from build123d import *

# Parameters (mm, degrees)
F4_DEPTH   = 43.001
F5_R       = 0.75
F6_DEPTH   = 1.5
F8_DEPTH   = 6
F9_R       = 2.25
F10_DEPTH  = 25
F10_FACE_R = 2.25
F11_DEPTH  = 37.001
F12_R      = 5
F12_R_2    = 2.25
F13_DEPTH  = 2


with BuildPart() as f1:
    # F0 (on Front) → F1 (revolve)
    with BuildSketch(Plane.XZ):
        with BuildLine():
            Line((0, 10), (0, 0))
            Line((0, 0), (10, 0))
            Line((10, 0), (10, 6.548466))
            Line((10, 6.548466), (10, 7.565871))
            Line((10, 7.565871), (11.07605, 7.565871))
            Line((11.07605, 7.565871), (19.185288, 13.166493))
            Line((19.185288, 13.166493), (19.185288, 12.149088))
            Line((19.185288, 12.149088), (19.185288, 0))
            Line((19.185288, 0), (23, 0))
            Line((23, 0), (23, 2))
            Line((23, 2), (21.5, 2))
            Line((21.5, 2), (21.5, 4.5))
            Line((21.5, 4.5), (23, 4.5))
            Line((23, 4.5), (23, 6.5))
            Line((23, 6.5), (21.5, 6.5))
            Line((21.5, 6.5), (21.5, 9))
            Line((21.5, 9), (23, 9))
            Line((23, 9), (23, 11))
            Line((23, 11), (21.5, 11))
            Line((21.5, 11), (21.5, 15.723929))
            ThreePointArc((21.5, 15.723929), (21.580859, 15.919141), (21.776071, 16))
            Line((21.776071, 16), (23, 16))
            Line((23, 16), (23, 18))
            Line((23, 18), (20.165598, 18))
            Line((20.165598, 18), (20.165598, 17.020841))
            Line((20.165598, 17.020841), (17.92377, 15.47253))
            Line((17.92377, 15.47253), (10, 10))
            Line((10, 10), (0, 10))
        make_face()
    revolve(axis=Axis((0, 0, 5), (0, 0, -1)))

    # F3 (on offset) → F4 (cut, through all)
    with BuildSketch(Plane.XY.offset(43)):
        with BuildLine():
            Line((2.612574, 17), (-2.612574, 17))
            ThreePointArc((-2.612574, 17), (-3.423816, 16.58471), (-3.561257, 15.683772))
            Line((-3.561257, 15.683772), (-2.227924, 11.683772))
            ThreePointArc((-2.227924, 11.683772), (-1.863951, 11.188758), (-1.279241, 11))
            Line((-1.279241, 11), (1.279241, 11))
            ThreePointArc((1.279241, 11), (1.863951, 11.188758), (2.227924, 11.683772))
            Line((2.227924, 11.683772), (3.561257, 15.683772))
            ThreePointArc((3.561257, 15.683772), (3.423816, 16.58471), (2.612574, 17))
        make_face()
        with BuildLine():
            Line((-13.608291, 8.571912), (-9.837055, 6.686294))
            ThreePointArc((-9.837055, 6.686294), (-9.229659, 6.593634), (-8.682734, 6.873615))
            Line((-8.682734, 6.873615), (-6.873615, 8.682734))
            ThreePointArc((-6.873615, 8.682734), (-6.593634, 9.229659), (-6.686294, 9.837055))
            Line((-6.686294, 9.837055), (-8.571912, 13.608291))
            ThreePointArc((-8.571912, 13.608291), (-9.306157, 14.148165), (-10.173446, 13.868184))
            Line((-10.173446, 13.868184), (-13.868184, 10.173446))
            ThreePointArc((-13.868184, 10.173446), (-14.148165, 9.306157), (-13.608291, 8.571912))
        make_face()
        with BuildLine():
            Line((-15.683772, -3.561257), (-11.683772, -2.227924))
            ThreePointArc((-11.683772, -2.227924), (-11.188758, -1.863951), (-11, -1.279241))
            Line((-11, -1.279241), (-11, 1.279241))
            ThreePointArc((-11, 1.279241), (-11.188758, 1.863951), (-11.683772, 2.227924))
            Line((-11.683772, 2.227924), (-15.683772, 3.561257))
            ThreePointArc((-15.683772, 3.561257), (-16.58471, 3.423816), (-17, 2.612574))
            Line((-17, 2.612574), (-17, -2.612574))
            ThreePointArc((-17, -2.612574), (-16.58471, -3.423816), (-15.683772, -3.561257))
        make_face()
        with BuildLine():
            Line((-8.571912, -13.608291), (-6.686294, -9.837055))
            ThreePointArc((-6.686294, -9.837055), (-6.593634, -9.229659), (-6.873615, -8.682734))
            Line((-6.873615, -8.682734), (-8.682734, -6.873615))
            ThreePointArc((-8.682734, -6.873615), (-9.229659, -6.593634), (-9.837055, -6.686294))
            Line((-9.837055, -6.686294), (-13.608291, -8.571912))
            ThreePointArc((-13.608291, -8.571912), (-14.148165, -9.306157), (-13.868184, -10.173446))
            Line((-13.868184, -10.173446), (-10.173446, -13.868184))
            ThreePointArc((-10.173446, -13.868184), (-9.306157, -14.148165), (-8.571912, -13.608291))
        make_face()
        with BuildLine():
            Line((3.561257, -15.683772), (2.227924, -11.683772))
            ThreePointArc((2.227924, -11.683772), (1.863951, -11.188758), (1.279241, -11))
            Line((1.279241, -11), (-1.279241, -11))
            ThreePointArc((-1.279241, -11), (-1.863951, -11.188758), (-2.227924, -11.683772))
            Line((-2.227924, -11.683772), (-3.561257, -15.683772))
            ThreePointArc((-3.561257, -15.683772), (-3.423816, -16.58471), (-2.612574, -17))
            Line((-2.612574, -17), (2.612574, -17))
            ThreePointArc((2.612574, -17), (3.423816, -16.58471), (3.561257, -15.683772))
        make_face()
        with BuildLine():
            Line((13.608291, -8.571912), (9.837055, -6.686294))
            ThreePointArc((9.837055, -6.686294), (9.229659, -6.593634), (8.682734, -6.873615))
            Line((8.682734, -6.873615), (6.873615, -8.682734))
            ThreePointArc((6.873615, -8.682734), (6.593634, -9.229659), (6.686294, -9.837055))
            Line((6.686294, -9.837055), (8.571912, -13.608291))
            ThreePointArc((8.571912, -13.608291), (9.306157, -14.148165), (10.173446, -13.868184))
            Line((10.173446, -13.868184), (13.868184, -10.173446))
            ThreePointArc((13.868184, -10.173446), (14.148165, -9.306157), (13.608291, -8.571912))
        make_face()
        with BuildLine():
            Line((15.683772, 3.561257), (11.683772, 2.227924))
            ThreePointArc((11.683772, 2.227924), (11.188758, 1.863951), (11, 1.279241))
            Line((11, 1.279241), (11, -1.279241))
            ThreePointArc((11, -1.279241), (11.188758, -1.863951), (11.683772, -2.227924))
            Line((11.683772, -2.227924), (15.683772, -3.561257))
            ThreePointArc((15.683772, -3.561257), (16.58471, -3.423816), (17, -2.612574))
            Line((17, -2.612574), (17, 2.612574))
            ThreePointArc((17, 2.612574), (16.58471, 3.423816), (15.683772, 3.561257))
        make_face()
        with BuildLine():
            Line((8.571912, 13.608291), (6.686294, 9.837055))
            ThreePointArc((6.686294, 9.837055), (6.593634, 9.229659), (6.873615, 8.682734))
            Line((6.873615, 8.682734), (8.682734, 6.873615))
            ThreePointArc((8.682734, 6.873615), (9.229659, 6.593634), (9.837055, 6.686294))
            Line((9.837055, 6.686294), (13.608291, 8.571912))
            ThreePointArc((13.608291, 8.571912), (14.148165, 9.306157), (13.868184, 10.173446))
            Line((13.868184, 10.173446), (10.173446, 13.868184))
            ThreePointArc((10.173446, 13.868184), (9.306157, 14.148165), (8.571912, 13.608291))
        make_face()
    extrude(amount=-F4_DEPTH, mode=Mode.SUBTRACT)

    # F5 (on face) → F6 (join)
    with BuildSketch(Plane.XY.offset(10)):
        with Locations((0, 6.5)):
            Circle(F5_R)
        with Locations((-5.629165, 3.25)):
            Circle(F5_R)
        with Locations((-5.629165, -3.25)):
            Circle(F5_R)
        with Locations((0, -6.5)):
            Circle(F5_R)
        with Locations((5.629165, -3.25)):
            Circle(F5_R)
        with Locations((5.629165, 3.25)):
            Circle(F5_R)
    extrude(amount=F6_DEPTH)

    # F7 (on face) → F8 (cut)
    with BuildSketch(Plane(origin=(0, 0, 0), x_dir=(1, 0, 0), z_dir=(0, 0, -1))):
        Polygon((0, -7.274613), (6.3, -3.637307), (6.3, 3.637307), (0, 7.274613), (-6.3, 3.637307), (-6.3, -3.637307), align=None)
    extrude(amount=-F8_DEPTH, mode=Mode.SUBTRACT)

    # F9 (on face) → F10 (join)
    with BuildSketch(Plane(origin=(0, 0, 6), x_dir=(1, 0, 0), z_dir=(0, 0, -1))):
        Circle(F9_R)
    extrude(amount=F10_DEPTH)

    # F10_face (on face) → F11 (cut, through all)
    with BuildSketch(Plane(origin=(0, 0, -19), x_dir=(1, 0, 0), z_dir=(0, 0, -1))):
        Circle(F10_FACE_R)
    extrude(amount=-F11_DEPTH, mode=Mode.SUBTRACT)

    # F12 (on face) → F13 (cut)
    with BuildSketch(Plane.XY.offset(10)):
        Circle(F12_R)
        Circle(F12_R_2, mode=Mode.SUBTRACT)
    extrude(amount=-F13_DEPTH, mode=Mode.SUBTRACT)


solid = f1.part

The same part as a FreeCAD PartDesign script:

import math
import FreeCAD as App
import Part
import Sketcher

V = App.Vector
Q = App.Units.Quantity


def add_polygon(sketch, points):
    """Adds a closed chain of lines whose ends are joined by coincident constraints."""
    first, n = sketch.GeometryCount, len(points)
    for a, b in zip(points, points[1:] + points[:1]):
        sketch.addGeometry(Part.LineSegment(App.Vector(*a, 0), App.Vector(*b, 0)), False)
    for i in range(n):
        sketch.addConstraint(Sketcher.Constraint("Coincident", first + i, 2, first + (i + 1) % n, 1))

doc = App.newDocument("Part")
body = doc.addObject("PartDesign::Body", "Body")

sketch1 = body.newObject("Sketcher::SketchObject", "Sketch")
sketch1.AttachmentSupport = (doc.getObject("XZ_Plane"), [""])
sketch1.MapMode = "FlatFace"
sketch1.addGeometry(Part.LineSegment(V(0, 10, 0), V(0, 0, 0)), False)
sketch1.addGeometry(Part.LineSegment(V(0, 0, 0), V(10, 0, 0)), False)
sketch1.addGeometry(Part.LineSegment(V(10, 0, 0), V(10, 7.57, 0)), False)
sketch1.addGeometry(Part.LineSegment(V(10, 7.57, 0), V(11.08, 7.57, 0)), False)
sketch1.addGeometry(Part.LineSegment(V(11.08, 7.57, 0), V(19.19, 13.17, 0)), False)
sketch1.addGeometry(Part.LineSegment(V(19.19, 13.17, 0), V(19.19, 0, 0)), False)
sketch1.addGeometry(Part.LineSegment(V(19.19, 0, 0), V(23, 0, 0)), False)
sketch1.addGeometry(Part.LineSegment(V(23, 0, 0), V(23, 2, 0)), False)
sketch1.addGeometry(Part.LineSegment(V(23, 2, 0), V(21.5, 2, 0)), False)
sketch1.addGeometry(Part.LineSegment(V(21.5, 2, 0), V(21.5, 4.5, 0)), False)
sketch1.addGeometry(Part.LineSegment(V(21.5, 4.5, 0), V(23, 4.5, 0)), False)
sketch1.addGeometry(Part.LineSegment(V(23, 4.5, 0), V(23, 6.5, 0)), False)
sketch1.addGeometry(Part.LineSegment(V(23, 6.5, 0), V(21.5, 6.5, 0)), False)
sketch1.addGeometry(Part.LineSegment(V(21.5, 6.5, 0), V(21.5, 9, 0)), False)
sketch1.addGeometry(Part.LineSegment(V(21.5, 9, 0), V(23, 9, 0)), False)
sketch1.addGeometry(Part.LineSegment(V(23, 9, 0), V(23, 11, 0)), False)
sketch1.addGeometry(Part.LineSegment(V(23, 11, 0), V(21.5, 11, 0)), False)
sketch1.addGeometry(Part.LineSegment(V(21.5, 11, 0), V(21.5, 15.72, 0)), False)
sketch1.addGeometry(Part.ArcOfCircle(Part.Circle(V(21.78, 15.72, 0), V(0, 0, 1), 0.28), math.radians(90), math.radians(180)), False)
sketch1.addGeometry(Part.LineSegment(V(21.78, 16, 0), V(23, 16, 0)), False)
sketch1.addGeometry(Part.LineSegment(V(23, 16, 0), V(23, 18, 0)), False)
sketch1.addGeometry(Part.LineSegment(V(23, 18, 0), V(20.17, 18, 0)), False)
sketch1.addGeometry(Part.LineSegment(V(20.17, 18, 0), V(20.17, 17.02, 0)), False)
sketch1.addGeometry(Part.LineSegment(V(20.17, 17.02, 0), V(17.92, 15.47, 0)), False)
sketch1.addGeometry(Part.LineSegment(V(17.92, 15.47, 0), V(10, 10, 0)), False)
sketch1.addGeometry(Part.LineSegment(V(10, 10, 0), V(0, 10, 0)), False)
sketch1.addConstraint(Sketcher.Constraint("Coincident", 0, 2, 1, 1))
sketch1.addConstraint(Sketcher.Constraint("Coincident", 1, 2, 2, 1))
sketch1.addConstraint(Sketcher.Constraint("Coincident", 2, 2, 3, 1))
sketch1.addConstraint(Sketcher.Constraint("Coincident", 3, 2, 4, 1))
sketch1.addConstraint(Sketcher.Constraint("Coincident", 4, 2, 5, 1))
sketch1.addConstraint(Sketcher.Constraint("Coincident", 5, 2, 6, 1))
sketch1.addConstraint(Sketcher.Constraint("Coincident", 6, 2, 7, 1))
sketch1.addConstraint(Sketcher.Constraint("Coincident", 7, 2, 8, 1))
sketch1.addConstraint(Sketcher.Constraint("Coincident", 8, 2, 9, 1))
sketch1.addConstraint(Sketcher.Constraint("Coincident", 9, 2, 10, 1))
sketch1.addConstraint(Sketcher.Constraint("Coincident", 10, 2, 11, 1))
sketch1.addConstraint(Sketcher.Constraint("Coincident", 11, 2, 12, 1))
sketch1.addConstraint(Sketcher.Constraint("Coincident", 12, 2, 13, 1))
sketch1.addConstraint(Sketcher.Constraint("Coincident", 13, 2, 14, 1))
sketch1.addConstraint(Sketcher.Constraint("Coincident", 14, 2, 15, 1))
sketch1.addConstraint(Sketcher.Constraint("Coincident", 15, 2, 16, 1))
sketch1.addConstraint(Sketcher.Constraint("Coincident", 16, 2, 17, 1))
sketch1.addConstraint(Sketcher.Constraint("Coincident", 17, 2, 18, 2))
sketch1.addConstraint(Sketcher.Constraint("Coincident", 18, 1, 19, 1))
sketch1.addConstraint(Sketcher.Constraint("Coincident", 19, 2, 20, 1))
sketch1.addConstraint(Sketcher.Constraint("Coincident", 20, 2, 21, 1))
sketch1.addConstraint(Sketcher.Constraint("Coincident", 21, 2, 22, 1))
sketch1.addConstraint(Sketcher.Constraint("Coincident", 22, 2, 23, 1))
sketch1.addConstraint(Sketcher.Constraint("Coincident", 23, 2, 24, 1))
sketch1.addConstraint(Sketcher.Constraint("Coincident", 24, 2, 25, 1))
sketch1.addConstraint(Sketcher.Constraint("Coincident", 25, 2, 0, 1))
sketch1.addConstraint(Sketcher.Constraint("Vertical", 0))
sketch1.addConstraint(Sketcher.Constraint("Horizontal", 1))
sketch1.addConstraint(Sketcher.Constraint("Vertical", 2))
sketch1.addConstraint(Sketcher.Constraint("Horizontal", 3))
sketch1.addConstraint(Sketcher.Constraint("Vertical", 5))
sketch1.addConstraint(Sketcher.Constraint("Horizontal", 6))
sketch1.addConstraint(Sketcher.Constraint("Vertical", 7))
sketch1.addConstraint(Sketcher.Constraint("Horizontal", 8))
sketch1.addConstraint(Sketcher.Constraint("Vertical", 9))
sketch1.addConstraint(Sketcher.Constraint("Horizontal", 10))
sketch1.addConstraint(Sketcher.Constraint("Vertical", 11))
sketch1.addConstraint(Sketcher.Constraint("Horizontal", 12))
sketch1.addConstraint(Sketcher.Constraint("Vertical", 13))
sketch1.addConstraint(Sketcher.Constraint("Horizontal", 14))
sketch1.addConstraint(Sketcher.Constraint("Vertical", 15))
sketch1.addConstraint(Sketcher.Constraint("Horizontal", 16))
sketch1.addConstraint(Sketcher.Constraint("Vertical", 17))
sketch1.addConstraint(Sketcher.Constraint("Horizontal", 19))
sketch1.addConstraint(Sketcher.Constraint("Vertical", 20))
sketch1.addConstraint(Sketcher.Constraint("Horizontal", 21))
sketch1.addConstraint(Sketcher.Constraint("Vertical", 22))
sketch1.addConstraint(Sketcher.Constraint("Horizontal", 25))
sketch1.addConstraint(Sketcher.Constraint("Coincident", 0, 2, -1, 1))
sketch1.addConstraint(Sketcher.Constraint("PointOnObject", 5, 2, -1))
sketch1.addConstraint(Sketcher.Constraint("Parallel", 4, 23))
sketch1.addConstraint(Sketcher.Constraint("Parallel", 23, 24))
sketch1.addConstraint(Sketcher.Constraint("Horizontal", 18, 3, 17, 2))
sketch1.addConstraint(Sketcher.Constraint("Vertical", 7, 2, 10, 2))
sketch1.addConstraint(Sketcher.Constraint("Vertical", 9, 2, 12, 2))
sketch1.addConstraint(Sketcher.Constraint("Vertical", 11, 2, 14, 2))
sketch1.addConstraint(Sketcher.Constraint("Vertical", 13, 2, 16, 2))
sketch1.addConstraint(Sketcher.Constraint("Vertical", 15, 2, 19, 2))
sketch1.addConstraint(Sketcher.Constraint("Vertical", 2, 2, 24, 2))
sketch1.addConstraint(Sketcher.Constraint("Equal", 25, 0))
sketch1.addConstraint(Sketcher.Constraint("Equal", 7, 11))
sketch1.addConstraint(Sketcher.Constraint("Equal", 9, 13))
sketch1.addConstraint(Sketcher.Constraint("Equal", 11, 15))
sketch1.addConstraint(Sketcher.Constraint("Equal", 15, 20))
sketch1.addConstraint(Sketcher.Constraint("DistanceX", 1, 1, 1, 2, Q("10 mm")))
sketch1.addConstraint(Sketcher.Constraint("DistanceY", 7, 1, 7, 2, Q("2 mm")))
sketch1.addConstraint(Sketcher.Constraint("DistanceX", 8, 2, 8, 1, Q("1.5 mm")))
sketch1.addConstraint(Sketcher.Constraint("DistanceY", 9, 1, 9, 2, Q("2.5 mm")))
sketch1.addConstraint(Sketcher.Constraint("DistanceX", -1, 1, 6, 2, Q("23 mm")))
sketch1.addConstraint(Sketcher.Constraint("DistanceY", -1, 1, 18, 1, Q("16 mm")))
sketch1.addConstraint(Sketcher.Constraint("Radius", 18, Q("0.27607 mm")))
sketch1.addConstraint(Sketcher.Constraint("DistanceX", 3, 1, 3, 2, Q("1.07605 mm")))
sketch1.addConstraint(Sketcher.Constraint("DistanceX", 19, 1, 19, 2, Q("1.223929 mm")))
sketch1.addConstraint(Sketcher.Constraint("DistanceY", 2, 1, 2, 2, Q("7.565871 mm")))
sketch1.addConstraint(Sketcher.Constraint("DistanceY", 22, 2, 22, 1, Q("0.979159 mm")))
sketch1.addConstraint(Sketcher.Constraint("DistanceY", 23, 2, 17, 2, Q("0.251399 mm")))
sketch1.addConstraint(Sketcher.Constraint("DistanceX", 23, 2, 18, 3, Q("3.8523 mm")))
sketch1.addConstraint(Sketcher.Constraint("Distance", 4, Q("9.855288 mm")))
revolution = body.newObject("PartDesign::Revolution", "Revolution")
revolution.Profile = sketch1
revolution.ReferenceAxis = (sketch1, ["V_Axis"])
revolution.Angle = 360

sketch2 = body.newObject("Sketcher::SketchObject", "Sketch001")
sketch2.AttachmentSupport = (doc.getObject("XY_Plane"), [""])
sketch2.MapMode = "FlatFace"
sketch2.AttachmentOffset = App.Placement(V(0, 0, 43), App.Rotation())
sketch2.addGeometry(Part.LineSegment(V(2.6, 17, 0), V(-2.6, 17, 0)), False)
sketch2.addGeometry(Part.ArcOfCircle(Part.Circle(V(-2.6, 16, 0), V(0, 0, 1), 1), math.radians(90), math.radians(198)), False)
sketch2.addGeometry(Part.LineSegment(V(-3.6, 15.7, 0), V(-2.2, 11.7, 0)), False)
sketch2.addGeometry(Part.ArcOfCircle(Part.Circle(V(-1.3, 12, 0), V(0, 0, 1), 1), math.radians(-162), math.radians(-90)), False)
sketch2.addGeometry(Part.LineSegment(V(-1.3, 11, 0), V(1.3, 11, 0)), False)
sketch2.addGeometry(Part.ArcOfCircle(Part.Circle(V(1.3, 12, 0), V(0, 0, 1), 1), math.radians(-90), math.radians(-18)), False)
sketch2.addGeometry(Part.LineSegment(V(2.2, 11.7, 0), V(3.6, 15.7, 0)), False)
sketch2.addGeometry(Part.ArcOfCircle(Part.Circle(V(2.6, 16, 0), V(0, 0, 1), 1), math.radians(-18), math.radians(90)), False)
sketch2.addGeometry(Part.LineSegment(V(-13.6, 8.6, 0), V(-9.8, 6.7, 0)), False)
sketch2.addGeometry(Part.ArcOfCircle(Part.Circle(V(-9.4, 7.6, 0), V(0, 0, 1), 1), math.radians(-117), math.radians(-45)), False)
sketch2.addGeometry(Part.LineSegment(V(-8.7, 6.9, 0), V(-6.9, 8.7, 0)), False)
sketch2.addGeometry(Part.ArcOfCircle(Part.Circle(V(-7.6, 9.4, 0), V(0, 0, 1), 1), math.radians(-45), math.radians(27)), False)
sketch2.addGeometry(Part.LineSegment(V(-6.7, 9.8, 0), V(-8.6, 13.6, 0)), False)
sketch2.addGeometry(Part.ArcOfCircle(Part.Circle(V(-9.5, 13.2, 0), V(0, 0, 1), 1), math.radians(27), math.radians(135)), False)
sketch2.addGeometry(Part.LineSegment(V(-10.2, 13.9, 0), V(-13.9, 10.2, 0)), False)
sketch2.addGeometry(Part.ArcOfCircle(Part.Circle(V(-13.2, 9.5, 0), V(0, 0, 1), 1), math.radians(135), math.radians(243)), False)
sketch2.addGeometry(Part.LineSegment(V(-15.7, -3.6, 0), V(-11.7, -2.2, 0)), False)
sketch2.addGeometry(Part.ArcOfCircle(Part.Circle(V(-12, -1.3, 0), V(0, 0, 1), 1), math.radians(-72), math.radians(0)), False)
sketch2.addGeometry(Part.LineSegment(V(-11, -1.3, 0), V(-11, 1.3, 0)), False)
sketch2.addGeometry(Part.ArcOfCircle(Part.Circle(V(-12, 1.3, 0), V(0, 0, 1), 1), math.radians(0), math.radians(72)), False)
sketch2.addGeometry(Part.LineSegment(V(-11.7, 2.2, 0), V(-15.7, 3.6, 0)), False)
sketch2.addGeometry(Part.ArcOfCircle(Part.Circle(V(-16, 2.6, 0), V(0, 0, 1), 1), math.radians(72), math.radians(180)), False)
sketch2.addGeometry(Part.LineSegment(V(-17, 2.6, 0), V(-17, -2.6, 0)), False)
sketch2.addGeometry(Part.ArcOfCircle(Part.Circle(V(-16, -2.6, 0), V(0, 0, 1), 1), math.radians(-180), math.radians(-72)), False)
sketch2.addGeometry(Part.LineSegment(V(-8.6, -13.6, 0), V(-6.7, -9.8, 0)), False)
sketch2.addGeometry(Part.ArcOfCircle(Part.Circle(V(-7.6, -9.4, 0), V(0, 0, 1), 1), math.radians(-27), math.radians(45)), False)
sketch2.addGeometry(Part.LineSegment(V(-6.9, -8.7, 0), V(-8.7, -6.9, 0)), False)
sketch2.addGeometry(Part.ArcOfCircle(Part.Circle(V(-9.4, -7.6, 0), V(0, 0, 1), 1), math.radians(45), math.radians(117)), False)
sketch2.addGeometry(Part.LineSegment(V(-9.8, -6.7, 0), V(-13.6, -8.6, 0)), False)
sketch2.addGeometry(Part.ArcOfCircle(Part.Circle(V(-13.2, -9.5, 0), V(0, 0, 1), 1), math.radians(117), math.radians(225)), False)
sketch2.addGeometry(Part.LineSegment(V(-13.9, -10.2, 0), V(-10.2, -13.9, 0)), False)
sketch2.addGeometry(Part.ArcOfCircle(Part.Circle(V(-9.5, -13.2, 0), V(0, 0, 1), 1), math.radians(-135), math.radians(-27)), False)
sketch2.addGeometry(Part.LineSegment(V(3.6, -15.7, 0), V(2.2, -11.7, 0)), False)
sketch2.addGeometry(Part.ArcOfCircle(Part.Circle(V(1.3, -12, 0), V(0, 0, 1), 1), math.radians(18), math.radians(90)), False)
sketch2.addGeometry(Part.LineSegment(V(1.3, -11, 0), V(-1.3, -11, 0)), False)
sketch2.addGeometry(Part.ArcOfCircle(Part.Circle(V(-1.3, -12, 0), V(0, 0, 1), 1), math.radians(90), math.radians(162)), False)
sketch2.addGeometry(Part.LineSegment(V(-2.2, -11.7, 0), V(-3.6, -15.7, 0)), False)
sketch2.addGeometry(Part.ArcOfCircle(Part.Circle(V(-2.6, -16, 0), V(0, 0, 1), 1), math.radians(162), math.radians(270)), False)
sketch2.addGeometry(Part.LineSegment(V(-2.6, -17, 0), V(2.6, -17, 0)), False)
sketch2.addGeometry(Part.ArcOfCircle(Part.Circle(V(2.6, -16, 0), V(0, 0, 1), 1), math.radians(-90), math.radians(18)), False)
sketch2.addGeometry(Part.LineSegment(V(13.6, -8.6, 0), V(9.8, -6.7, 0)), False)
sketch2.addGeometry(Part.ArcOfCircle(Part.Circle(V(9.4, -7.6, 0), V(0, 0, 1), 1), math.radians(63), math.radians(135)), False)
sketch2.addGeometry(Part.LineSegment(V(8.7, -6.9, 0), V(6.9, -8.7, 0)), False)
sketch2.addGeometry(Part.ArcOfCircle(Part.Circle(V(7.6, -9.4, 0), V(0, 0, 1), 1), math.radians(135), math.radians(207)), False)
sketch2.addGeometry(Part.LineSegment(V(6.7, -9.8, 0), V(8.6, -13.6, 0)), False)
sketch2.addGeometry(Part.ArcOfCircle(Part.Circle(V(9.5, -13.2, 0), V(0, 0, 1), 1), math.radians(-153), math.radians(-45)), False)
sketch2.addGeometry(Part.LineSegment(V(10.2, -13.9, 0), V(13.9, -10.2, 0)), False)
sketch2.addGeometry(Part.ArcOfCircle(Part.Circle(V(13.2, -9.5, 0), V(0, 0, 1), 1), math.radians(-45), math.radians(63)), False)
sketch2.addGeometry(Part.LineSegment(V(15.7, 3.6, 0), V(11.7, 2.2, 0)), False)
sketch2.addGeometry(Part.ArcOfCircle(Part.Circle(V(12, 1.3, 0), V(0, 0, 1), 1), math.radians(108), math.radians(180)), False)
sketch2.addGeometry(Part.LineSegment(V(11, 1.3, 0), V(11, -1.3, 0)), False)
sketch2.addGeometry(Part.ArcOfCircle(Part.Circle(V(12, -1.3, 0), V(0, 0, 1), 1), math.radians(-180), math.radians(-108)), False)
sketch2.addGeometry(Part.LineSegment(V(11.7, -2.2, 0), V(15.7, -3.6, 0)), False)
sketch2.addGeometry(Part.ArcOfCircle(Part.Circle(V(16, -2.6, 0), V(0, 0, 1), 1), math.radians(-108), math.radians(0)), False)
sketch2.addGeometry(Part.LineSegment(V(17, -2.6, 0), V(17, 2.6, 0)), False)
sketch2.addGeometry(Part.ArcOfCircle(Part.Circle(V(16, 2.6, 0), V(0, 0, 1), 1), math.radians(0), math.radians(108)), False)
sketch2.addGeometry(Part.LineSegment(V(8.6, 13.6, 0), V(6.7, 9.8, 0)), False)
sketch2.addGeometry(Part.ArcOfCircle(Part.Circle(V(7.6, 9.4, 0), V(0, 0, 1), 1), math.radians(153), math.radians(225)), False)
sketch2.addGeometry(Part.LineSegment(V(6.9, 8.7, 0), V(8.7, 6.9, 0)), False)
sketch2.addGeometry(Part.ArcOfCircle(Part.Circle(V(9.4, 7.6, 0), V(0, 0, 1), 1), math.radians(-135), math.radians(-63)), False)
sketch2.addGeometry(Part.LineSegment(V(9.8, 6.7, 0), V(13.6, 8.6, 0)), False)
sketch2.addGeometry(Part.ArcOfCircle(Part.Circle(V(13.2, 9.5, 0), V(0, 0, 1), 1), math.radians(-63), math.radians(45)), False)
sketch2.addGeometry(Part.LineSegment(V(13.9, 10.2, 0), V(10.2, 13.9, 0)), False)
sketch2.addGeometry(Part.ArcOfCircle(Part.Circle(V(9.5, 13.2, 0), V(0, 0, 1), 1), math.radians(45), math.radians(153)), False)
sketch2.addConstraint(Sketcher.Constraint("Tangent", 0, 2, 1, 1))
sketch2.addConstraint(Sketcher.Constraint("Tangent", 1, 2, 2, 1))
sketch2.addConstraint(Sketcher.Constraint("Tangent", 2, 2, 3, 1))
sketch2.addConstraint(Sketcher.Constraint("Tangent", 3, 2, 4, 1))
sketch2.addConstraint(Sketcher.Constraint("Tangent", 4, 2, 5, 1))
sketch2.addConstraint(Sketcher.Constraint("Tangent", 5, 2, 6, 1))
sketch2.addConstraint(Sketcher.Constraint("Tangent", 6, 2, 7, 1))
sketch2.addConstraint(Sketcher.Constraint("Tangent", 7, 2, 0, 1))
sketch2.addConstraint(Sketcher.Constraint("Tangent", 8, 2, 9, 1))
sketch2.addConstraint(Sketcher.Constraint("Tangent", 9, 2, 10, 1))
sketch2.addConstraint(Sketcher.Constraint("Tangent", 10, 2, 11, 1))
sketch2.addConstraint(Sketcher.Constraint("Tangent", 11, 2, 12, 1))
sketch2.addConstraint(Sketcher.Constraint("Tangent", 12, 2, 13, 1))
sketch2.addConstraint(Sketcher.Constraint("Tangent", 13, 2, 14, 1))
sketch2.addConstraint(Sketcher.Constraint("Tangent", 14, 2, 15, 1))
sketch2.addConstraint(Sketcher.Constraint("Tangent", 15, 2, 8, 1))
sketch2.addConstraint(Sketcher.Constraint("Tangent", 16, 2, 17, 1))
sketch2.addConstraint(Sketcher.Constraint("Tangent", 17, 2, 18, 1))
sketch2.addConstraint(Sketcher.Constraint("Tangent", 18, 2, 19, 1))
sketch2.addConstraint(Sketcher.Constraint("Tangent", 19, 2, 20, 1))
sketch2.addConstraint(Sketcher.Constraint("Tangent", 20, 2, 21, 1))
sketch2.addConstraint(Sketcher.Constraint("Tangent", 21, 2, 22, 1))
sketch2.addConstraint(Sketcher.Constraint("Tangent", 22, 2, 23, 1))
sketch2.addConstraint(Sketcher.Constraint("Tangent", 23, 2, 16, 1))
sketch2.addConstraint(Sketcher.Constraint("Tangent", 24, 2, 25, 1))
sketch2.addConstraint(Sketcher.Constraint("Tangent", 25, 2, 26, 1))
sketch2.addConstraint(Sketcher.Constraint("Tangent", 26, 2, 27, 1))
sketch2.addConstraint(Sketcher.Constraint("Tangent", 27, 2, 28, 1))
sketch2.addConstraint(Sketcher.Constraint("Tangent", 28, 2, 29, 1))
sketch2.addConstraint(Sketcher.Constraint("Tangent", 29, 2, 30, 1))
sketch2.addConstraint(Sketcher.Constraint("Tangent", 30, 2, 31, 1))
sketch2.addConstraint(Sketcher.Constraint("Tangent", 31, 2, 24, 1))
sketch2.addConstraint(Sketcher.Constraint("Tangent", 32, 2, 33, 1))
sketch2.addConstraint(Sketcher.Constraint("Tangent", 33, 2, 34, 1))
sketch2.addConstraint(Sketcher.Constraint("Tangent", 34, 2, 35, 1))
sketch2.addConstraint(Sketcher.Constraint("Tangent", 35, 2, 36, 1))
sketch2.addConstraint(Sketcher.Constraint("Tangent", 36, 2, 37, 1))
sketch2.addConstraint(Sketcher.Constraint("Tangent", 37, 2, 38, 1))
sketch2.addConstraint(Sketcher.Constraint("Tangent", 38, 2, 39, 1))
sketch2.addConstraint(Sketcher.Constraint("Tangent", 39, 2, 32, 1))
sketch2.addConstraint(Sketcher.Constraint("Tangent", 40, 2, 41, 1))
sketch2.addConstraint(Sketcher.Constraint("Tangent", 41, 2, 42, 1))
sketch2.addConstraint(Sketcher.Constraint("Tangent", 42, 2, 43, 1))
sketch2.addConstraint(Sketcher.Constraint("Tangent", 43, 2, 44, 1))
sketch2.addConstraint(Sketcher.Constraint("Tangent", 44, 2, 45, 1))
sketch2.addConstraint(Sketcher.Constraint("Tangent", 45, 2, 46, 1))
sketch2.addConstraint(Sketcher.Constraint("Tangent", 46, 2, 47, 1))
sketch2.addConstraint(Sketcher.Constraint("Tangent", 47, 2, 40, 1))
sketch2.addConstraint(Sketcher.Constraint("Tangent", 48, 2, 49, 1))
sketch2.addConstraint(Sketcher.Constraint("Tangent", 49, 2, 50, 1))
sketch2.addConstraint(Sketcher.Constraint("Tangent", 50, 2, 51, 1))
sketch2.addConstraint(Sketcher.Constraint("Tangent", 51, 2, 52, 1))
sketch2.addConstraint(Sketcher.Constraint("Tangent", 52, 2, 53, 1))
sketch2.addConstraint(Sketcher.Constraint("Tangent", 53, 2, 54, 1))
sketch2.addConstraint(Sketcher.Constraint("Tangent", 54, 2, 55, 1))
sketch2.addConstraint(Sketcher.Constraint("Tangent", 55, 2, 48, 1))
sketch2.addConstraint(Sketcher.Constraint("Tangent", 56, 2, 57, 1))
sketch2.addConstraint(Sketcher.Constraint("Tangent", 57, 2, 58, 1))
sketch2.addConstraint(Sketcher.Constraint("Tangent", 58, 2, 59, 1))
sketch2.addConstraint(Sketcher.Constraint("Tangent", 59, 2, 60, 1))
sketch2.addConstraint(Sketcher.Constraint("Tangent", 60, 2, 61, 1))
sketch2.addConstraint(Sketcher.Constraint("Tangent", 61, 2, 62, 1))
sketch2.addConstraint(Sketcher.Constraint("Tangent", 62, 2, 63, 1))
sketch2.addConstraint(Sketcher.Constraint("Tangent", 63, 2, 56, 1))
sketch2.addConstraint(Sketcher.Constraint("Horizontal", 0))
sketch2.addConstraint(Sketcher.Constraint("Horizontal", 4))
sketch2.addConstraint(Sketcher.Constraint("Vertical", 18))
sketch2.addConstraint(Sketcher.Constraint("Vertical", 22))
sketch2.addConstraint(Sketcher.Constraint("Horizontal", 34))
sketch2.addConstraint(Sketcher.Constraint("Horizontal", 38))
sketch2.addConstraint(Sketcher.Constraint("Vertical", 50))
sketch2.addConstraint(Sketcher.Constraint("Vertical", 54))
sketch2.addConstraint(Sketcher.Constraint("Equal", 1, 3))
sketch2.addConstraint(Sketcher.Constraint("Equal", 3, 5))
sketch2.addConstraint(Sketcher.Constraint("Equal", 5, 7))
sketch2.addConstraint(Sketcher.Constraint("Equal", 7, 9))
sketch2.addConstraint(Sketcher.Constraint("Equal", 9, 11))
sketch2.addConstraint(Sketcher.Constraint("Equal", 11, 13))
sketch2.addConstraint(Sketcher.Constraint("Equal", 13, 15))
sketch2.addConstraint(Sketcher.Constraint("Equal", 15, 17))
sketch2.addConstraint(Sketcher.Constraint("Equal", 17, 19))
sketch2.addConstraint(Sketcher.Constraint("Equal", 19, 21))
sketch2.addConstraint(Sketcher.Constraint("Equal", 21, 23))
sketch2.addConstraint(Sketcher.Constraint("Equal", 23, 25))
sketch2.addConstraint(Sketcher.Constraint("Equal", 25, 27))
sketch2.addConstraint(Sketcher.Constraint("Equal", 27, 29))
sketch2.addConstraint(Sketcher.Constraint("Equal", 29, 31))
sketch2.addConstraint(Sketcher.Constraint("Equal", 31, 33))
sketch2.addConstraint(Sketcher.Constraint("Equal", 33, 35))
sketch2.addConstraint(Sketcher.Constraint("Equal", 35, 37))
sketch2.addConstraint(Sketcher.Constraint("Equal", 37, 39))
sketch2.addConstraint(Sketcher.Constraint("Equal", 39, 41))
sketch2.addConstraint(Sketcher.Constraint("Equal", 41, 43))
sketch2.addConstraint(Sketcher.Constraint("Equal", 43, 45))
sketch2.addConstraint(Sketcher.Constraint("Equal", 45, 47))
sketch2.addConstraint(Sketcher.Constraint("Equal", 47, 49))
sketch2.addConstraint(Sketcher.Constraint("Equal", 49, 51))
sketch2.addConstraint(Sketcher.Constraint("Equal", 51, 53))
sketch2.addConstraint(Sketcher.Constraint("Equal", 53, 55))
sketch2.addConstraint(Sketcher.Constraint("Equal", 55, 57))
sketch2.addConstraint(Sketcher.Constraint("Equal", 57, 59))
sketch2.addConstraint(Sketcher.Constraint("Equal", 59, 61))
sketch2.addConstraint(Sketcher.Constraint("Equal", 61, 63))
sketch2.addConstraint(Sketcher.Constraint("Symmetric", 3, 3, 33, 3, -1, 1))
sketch2.addConstraint(Sketcher.Constraint("Symmetric", 7, 3, 37, 3, -1, 1))
sketch2.addConstraint(Sketcher.Constraint("Symmetric", 9, 3, 41, 3, -1, 1))
sketch2.addConstraint(Sketcher.Constraint("Symmetric", 11, 3, 43, 3, -1, 1))
sketch2.addConstraint(Sketcher.Constraint("Symmetric", 13, 3, 45, 3, -1, 1))
sketch2.addConstraint(Sketcher.Constraint("Symmetric", 15, 3, 47, 3, -1, 1))
sketch2.addConstraint(Sketcher.Constraint("Symmetric", 17, 3, 49, 3, -1, 1))
sketch2.addConstraint(Sketcher.Constraint("Symmetric", 21, 3, 53, 3, -1, 1))
sketch2.addConstraint(Sketcher.Constraint("Symmetric", 25, 3, 57, 3, -1, 1))
sketch2.addConstraint(Sketcher.Constraint("Symmetric", 27, 3, 59, 3, -1, 1))
sketch2.addConstraint(Sketcher.Constraint("Symmetric", 29, 3, 61, 3, -1, 1))
sketch2.addConstraint(Sketcher.Constraint("Symmetric", 31, 3, 63, 3, -1, 1))
sketch2.addConstraint(Sketcher.Constraint("Symmetric", 27, 3, 41, 3, -2))
sketch2.addConstraint(Sketcher.Constraint("Symmetric", 25, 3, 43, 3, -2))
sketch2.addConstraint(Sketcher.Constraint("Symmetric", 31, 3, 45, 3, -2))
sketch2.addConstraint(Sketcher.Constraint("Symmetric", 29, 3, 47, 3, -2))
sketch2.addConstraint(Sketcher.Constraint("Symmetric", 2, 2, 5, 2, -2))
sketch2.addConstraint(Sketcher.Constraint("Symmetric", 32, 2, 35, 2, -2))
sketch2.addConstraint(Sketcher.Constraint("Symmetric", 19, 2, 48, 2, -2))
sketch2.addConstraint(Sketcher.Constraint("Symmetric", 16, 2, 51, 2, -2))
sketch2.addConstraint(Sketcher.Constraint("Parallel", 10, 14))
sketch2.addConstraint(Sketcher.Constraint("Perpendicular", 2, 16))
sketch2.addConstraint(Sketcher.Constraint("Perpendicular", 8, 24))
sketch2.addConstraint(Sketcher.Constraint("Perpendicular", 14, 26))
sketch2.addConstraint(Sketcher.Constraint("Equal", 34, 18))
sketch2.addConstraint(Sketcher.Constraint("Equal", 38, 22))
sketch2.addConstraint(Sketcher.Constraint("Equal", 6, 8))
sketch2.addConstraint(Sketcher.Constraint("Radius", 1, Q("1 mm")))
sketch2.addConstraint(Sketcher.Constraint("DistanceY", -1, 1, 1, 3, Q("16 mm")))
sketch2.addConstraint(Sketcher.Constraint("DistanceY", -1, 1, 3, 3, Q("12.000001 mm")))
sketch2.addConstraint(Sketcher.Constraint("DistanceX", 17, 3, -1, 1, Q("12.000001 mm")))
sketch2.addConstraint(Sketcher.Constraint("Distance", 2, Q("4.21637 mm")))
sketch2.addConstraint(Sketcher.Constraint("Distance", 10, Q("2.558481 mm")))
sketch2.addConstraint(Sketcher.Constraint("Distance", 14, Q("5.225149 mm")))
sketch2.addConstraint(Sketcher.Constraint("DistanceX", 0, 2, 0, 1, Q("5.225148 mm")))
sketch2.addConstraint(Sketcher.Constraint("DistanceX", 9, 3, -1, 1, Q("9.389842 mm")))
sketch2.addConstraint(Sketcher.Constraint("DistanceY", -1, 1, 11, 3, Q("9.389842 mm")))
pocket1 = body.newObject("PartDesign::Pocket", "Pocket")
pocket1.Profile = sketch2
pocket1.Type = "ThroughAll"

sketch3 = body.newObject("Sketcher::SketchObject", "Sketch002")
sketch3.AttachmentSupport = (doc.getObject("XY_Plane"), [""])
sketch3.MapMode = "FlatFace"
sketch3.AttachmentOffset = App.Placement(V(0, 0, 10), App.Rotation())
sketch3.addGeometry(Part.Circle(V(0, 6.5, 0), V(0, 0, 1), 0.8), False)
sketch3.addGeometry(Part.Circle(V(-5.6, 3.2, 0), V(0, 0, 1), 0.8), False)
sketch3.addGeometry(Part.Circle(V(-5.6, -3.2, 0), V(0, 0, 1), 0.8), False)
sketch3.addGeometry(Part.Circle(V(0, -6.5, 0), V(0, 0, 1), 0.8), False)
sketch3.addGeometry(Part.Circle(V(5.6, -3.2, 0), V(0, 0, 1), 0.8), False)
sketch3.addGeometry(Part.Circle(V(5.6, 3.2, 0), V(0, 0, 1), 0.8), False)
sketch3.addConstraint(Sketcher.Constraint("Equal", 0, 1))
sketch3.addConstraint(Sketcher.Constraint("Equal", 1, 2))
sketch3.addConstraint(Sketcher.Constraint("Equal", 2, 3))
sketch3.addConstraint(Sketcher.Constraint("Equal", 3, 4))
sketch3.addConstraint(Sketcher.Constraint("Equal", 4, 5))
sketch3.addConstraint(Sketcher.Constraint("Symmetric", 0, 3, 3, 3, -1, 1))
sketch3.addConstraint(Sketcher.Constraint("Symmetric", 1, 3, 4, 3, -1, 1))
sketch3.addConstraint(Sketcher.Constraint("Symmetric", 2, 3, 5, 3, -1, 1))
sketch3.addConstraint(Sketcher.Constraint("Symmetric", 2, 3, 4, 3, -2))
sketch3.addConstraint(Sketcher.Constraint("PointOnObject", 0, 3, -2))
sketch3.addConstraint(Sketcher.Constraint("Diameter", 0, Q("1.5 mm")))
sketch3.addConstraint(Sketcher.Constraint("DistanceY", 3, 3, 0, 3, Q("13 mm")))
sketch3.addConstraint(Sketcher.Constraint("DistanceY", 2, 3, 1, 3, Q("6.5 mm")))
sketch3.addConstraint(Sketcher.Constraint("DistanceX", 2, 3, 4, 3, Q("11.25833 mm")))
pad1 = body.newObject("PartDesign::Pad", "Pad")
pad1.Profile = sketch3
pad1.Length = 1.5

sketch4 = body.newObject("Sketcher::SketchObject", "Sketch003")
sketch4.AttachmentSupport = (doc.getObject("XY_Plane"), [""])
sketch4.MapMode = "FlatFace"
add_polygon(sketch4, [(0, 7), (6, 4), (6, -4), (0, -7), (-6, -4), (-6, 4)])
sketch4.addConstraint(Sketcher.Constraint("Vertical", 1))
sketch4.addConstraint(Sketcher.Constraint("Vertical", 4))
sketch4.addConstraint(Sketcher.Constraint("Symmetric", 0, 2, 3, 2, -1, 1))
sketch4.addConstraint(Sketcher.Constraint("Symmetric", 2, 2, 5, 2, -1, 1))
sketch4.addConstraint(Sketcher.Constraint("PointOnObject", 2, 2, -2))
sketch4.addConstraint(Sketcher.Constraint("Parallel", 2, 5))
sketch4.addConstraint(Sketcher.Constraint("Horizontal", 1, 2, 3, 2))
sketch4.addConstraint(Sketcher.Constraint("Angle", 0, Q("-29.999995 deg")))
sketch4.addConstraint(Sketcher.Constraint("DistanceX", -1, 1, 0, 2, Q("6.3 mm")))
sketch4.addConstraint(Sketcher.Constraint("DistanceY", 1, 2, 1, 1, Q("7.274614 mm")))
pocket2 = body.newObject("PartDesign::Pocket", "Pocket001")
pocket2.Profile = sketch4
pocket2.Length = 6
pocket2.Reversed = True

sketch5 = body.newObject("Sketcher::SketchObject", "Sketch004")
sketch5.AttachmentSupport = (doc.getObject("XY_Plane"), [""])
sketch5.MapMode = "FlatFace"
sketch5.AttachmentOffset = App.Placement(V(0, 0, 6), App.Rotation())
sketch5.addGeometry(Part.Circle(V(0, 0, 0), V(0, 0, 1), 2.2), False)
sketch5.addConstraint(Sketcher.Constraint("Coincident", 0, 3, -1, 1))
sketch5.addConstraint(Sketcher.Constraint("Diameter", 0, Q("4.5 mm")))
pad2 = body.newObject("PartDesign::Pad", "Pad001")
pad2.Profile = sketch5
pad2.Length = 25
pad2.Reversed = True

sketch6 = body.newObject("Sketcher::SketchObject", "Sketch005")
sketch6.AttachmentSupport = (doc.getObject("XY_Plane"), [""])
sketch6.MapMode = "FlatFace"
sketch6.AttachmentOffset = App.Placement(V(0, 0, -19), App.Rotation())
sketch6.addGeometry(Part.Circle(V(0, 0, 0), V(0, 0, 1), 2.2), False)
sketch6.addConstraint(Sketcher.Constraint("Coincident", 0, 3, -1, 1))
sketch6.addConstraint(Sketcher.Constraint("Diameter", 0, Q("4.5 mm")))
pocket3 = body.newObject("PartDesign::Pocket", "Pocket002")
pocket3.Profile = sketch6
pocket3.Type = "ThroughAll"
pocket3.Reversed = True

sketch7 = body.newObject("Sketcher::SketchObject", "Sketch006")
sketch7.AttachmentSupport = (doc.getObject("XY_Plane"), [""])
sketch7.MapMode = "FlatFace"
sketch7.AttachmentOffset = App.Placement(V(0, 0, 10), App.Rotation())
sketch7.addGeometry(Part.Circle(V(0, 0, 0), V(0, 0, 1), 5), False)
sketch7.addGeometry(Part.Circle(V(0, 0, 0), V(0, 0, 1), 2.2), False)
sketch7.addConstraint(Sketcher.Constraint("Coincident", 0, 3, -1, 1))
sketch7.addConstraint(Sketcher.Constraint("Coincident", 1, 3, -1, 1))
sketch7.addConstraint(Sketcher.Constraint("Diameter", 0, Q("10 mm")))
sketch7.addConstraint(Sketcher.Constraint("Diameter", 1, Q("4.5 mm")))
pocket4 = body.newObject("PartDesign::Pocket", "Pocket003")
pocket4.Profile = sketch7
pocket4.Length = 2

doc.recompute()
